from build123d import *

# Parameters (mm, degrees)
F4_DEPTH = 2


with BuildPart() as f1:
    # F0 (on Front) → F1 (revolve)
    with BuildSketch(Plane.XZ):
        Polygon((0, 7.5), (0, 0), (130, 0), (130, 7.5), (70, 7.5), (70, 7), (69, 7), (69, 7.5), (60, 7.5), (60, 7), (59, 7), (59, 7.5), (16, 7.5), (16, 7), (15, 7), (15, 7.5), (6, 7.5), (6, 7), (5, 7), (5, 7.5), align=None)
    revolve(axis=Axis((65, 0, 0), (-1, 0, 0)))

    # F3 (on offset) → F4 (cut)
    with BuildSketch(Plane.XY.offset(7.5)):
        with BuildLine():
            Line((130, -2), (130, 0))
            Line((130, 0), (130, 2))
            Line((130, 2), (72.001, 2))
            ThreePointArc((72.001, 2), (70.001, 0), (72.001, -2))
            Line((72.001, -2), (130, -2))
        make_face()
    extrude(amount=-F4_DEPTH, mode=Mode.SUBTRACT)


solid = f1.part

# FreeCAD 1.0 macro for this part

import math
import FreeCAD as App
import Part
import Sketcher
Q = App.Units.Quantity

doc = App.newDocument("Part")
body = doc.addObject("PartDesign::Body", "Body")

sketch1 = body.newObject("Sketcher::SketchObject", "Sketch")
sketch1.AttachmentSupport = (doc.getObject("XZ_Plane"), [""])
sketch1.MapMode = "FlatFace"
sketch1.addGeometry([
    Part.LineSegment(App.Vector(0, 7.5, 0), App.Vector(0, 0, 0)),
    Part.LineSegment(App.Vector(0, 0, 0), App.Vector(130, 0, 0)),
    Part.LineSegment(App.Vector(130, 0, 0), App.Vector(130, 7.5, 0)),
    Part.LineSegment(App.Vector(130, 7.5, 0), App.Vector(70, 7.5, 0)),
    Part.LineSegment(App.Vector(70, 7.5, 0), App.Vector(70, 7, 0)),
    Part.LineSegment(App.Vector(70, 7, 0), App.Vector(69, 7, 0)),
    Part.LineSegment(App.Vector(69, 7, 0), App.Vector(69, 7.5, 0)),
    Part.LineSegment(App.Vector(69, 7.5, 0), App.Vector(60, 7.5, 0)),
    Part.LineSegment(App.Vector(60, 7.5, 0), App.Vector(60, 7, 0)),
    Part.LineSegment(App.Vector(60, 7, 0), App.Vector(59, 7, 0)),
    Part.LineSegment(App.Vector(59, 7, 0), App.Vector(59, 7.5, 0)),
    Part.LineSegment(App.Vector(59, 7.5, 0), App.Vector(16, 7.5, 0)),
    Part.LineSegment(App.Vector(16, 7.5, 0), App.Vector(16, 7, 0)),
    Part.LineSegment(App.Vector(16, 7, 0), App.Vector(15, 7, 0)),
    Part.LineSegment(App.Vector(15, 7, 0), App.Vector(15, 7.5, 0)),
    Part.LineSegment(App.Vector(15, 7.5, 0), App.Vector(6, 7.5, 0)),
    Part.LineSegment(App.Vector(6, 7.5, 0), App.Vector(6, 7, 0)),
    Part.LineSegment(App.Vector(6, 7, 0), App.Vector(5, 7, 0)),
    Part.LineSegment(App.Vector(5, 7, 0), App.Vector(5, 7.5, 0)),
    Part.LineSegment(App.Vector(5, 7.5, 0), App.Vector(0, 7.5, 0)),
], False)
sketch1.addConstraint([
    Sketcher.Constraint("Coincident", 0, 2, 1, 1),
    Sketcher.Constraint("Coincident", 1, 2, 2, 1),
    Sketcher.Constraint("Coincident", 2, 2, 3, 1),
    Sketcher.Constraint("Coincident", 3, 2, 4, 1),
    Sketcher.Constraint("Coincident", 4, 2, 5, 1),
    Sketcher.Constraint("Coincident", 5, 2, 6, 1),
    Sketcher.Constraint("Coincident", 6, 2, 7, 1),
    Sketcher.Constraint("Coincident", 7, 2, 8, 1),
    Sketcher.Constraint("Coincident", 8, 2, 9, 1),
    Sketcher.Constraint("Coincident", 9, 2, 10, 1),
    Sketcher.Constraint("Coincident", 10, 2, 11, 1),
    Sketcher.Constraint("Coincident", 11, 2, 12, 1),
    Sketcher.Constraint("Coincident", 12, 2, 13, 1),
    Sketcher.Constraint("Coincident", 13, 2, 14, 1),
    Sketcher.Constraint("Coincident", 14, 2, 15, 1),
    Sketcher.Constraint("Coincident", 15, 2, 16, 1),
    Sketcher.Constraint("Coincident", 16, 2, 17, 1),
    Sketcher.Constraint("Coincident", 17, 2, 18, 1),
    Sketcher.Constraint("Coincident", 18, 2, 19, 1),
    Sketcher.Constraint("Coincident", 19, 2, 0, 1),
    Sketcher.Constraint("Vertical", 0),
    Sketcher.Constraint("Horizontal", 1),
    Sketcher.Constraint("Vertical", 2),
    Sketcher.Constraint("Horizontal", 3),
    Sketcher.Constraint("Vertical", 4),
    Sketcher.Constraint("Horizontal", 5),
    Sketcher.Constraint("Vertical", 6),
    Sketcher.Constraint("Horizontal", 7),
    Sketcher.Constraint("Vertical", 8),
    Sketcher.Constraint("Horizontal", 9),
    Sketcher.Constraint("Vertical", 10),
    Sketcher.Constraint("Horizontal", 11),
    Sketcher.Constraint("Vertical", 12),
    Sketcher.Constraint("Horizontal", 13),
    Sketcher.Constraint("Vertical", 14),
    Sketcher.Constraint("Horizontal", 15),
    Sketcher.Constraint("Vertical", 16),
    Sketcher.Constraint("Horizontal", 17),
    Sketcher.Constraint("Vertical", 18),
    Sketcher.Constraint("Horizontal", 19),
    Sketcher.Constraint("Coincident", 0, 2, -1, 1),
    Sketcher.Constraint("Horizontal", 3, 2, 6, 2),
    Sketcher.Constraint("Horizontal", 5, 2, 8, 2),
    Sketcher.Constraint("Horizontal", 7, 2, 10, 2),
    Sketcher.Constraint("Horizontal", 9, 2, 12, 2),
    Sketcher.Constraint("Horizontal", 11, 2, 14, 2),
    Sketcher.Constraint("Horizontal", 13, 2, 16, 2),
    Sketcher.Constraint("Horizontal", 15, 2, 18, 2),
    Sketcher.Constraint("Equal", 5, 9),
    Sketcher.Constraint("Equal", 9, 13),
    Sketcher.Constraint("Equal", 7, 15),
    Sketcher.Constraint("Equal", 13, 17),
    Sketcher.Constraint("DistanceX", 1, 1, 1, 2, Q("130 mm")),
    Sketcher.Constraint("DistanceX", 3, 2, 3, 1, Q("60 mm")),
    Sketcher.Constraint("DistanceX", 5, 2, 5, 1, Q("1 mm")),
    Sketcher.Constraint("DistanceX", 7, 2, 7, 1, Q("9 mm")),
    Sketcher.Constraint("DistanceX", 11, 2, 11, 1, Q("43 mm")),
    Sketcher.Constraint("DistanceY", 0, 2, 0, 1, Q("7.5 mm")),
    Sketcher.Constraint("DistanceY", 4, 2, 4, 1, Q("0.5 mm")),
])
revolution = body.newObject("PartDesign::Revolution", "Revolution")
revolution.Profile = sketch1
revolution.ReferenceAxis = (sketch1, ["H_Axis"])
revolution.Angle = 360

sketch2 = body.newObject("Sketcher::SketchObject", "Sketch001")
sketch2.AttachmentSupport = (doc.getObject("XY_Plane"), [""])
sketch2.MapMode = "FlatFace"
sketch2.AttachmentOffset = App.Placement(App.Vector(0, 0, 7.5), App.Rotation())
sketch2.addGeometry([
    Part.LineSegment(App.Vector(130, -2, 0), App.Vector(130, 2, 0)),
    Part.LineSegment(App.Vector(130, 2, 0), App.Vector(72.001, 2, 0)),
    Part.ArcOfCircle(Part.Circle(App.Vector(72.001, 0, 0), App.Vector(0, 0, 1), 2), math.radians(90), math.radians(270)),
    Part.LineSegment(App.Vector(72.001, -2, 0), App.Vector(130, -2, 0)),
], False)
sketch2.addConstraint([
    Sketcher.Constraint("Coincident", 0, 2, 1, 1),
    Sketcher.Constraint("Tangent", 1, 2, 2, 1),
    Sketcher.Constraint("Tangent", 2, 2, 3, 1),
    Sketcher.Constraint("Coincident", 3, 2, 0, 1),
    Sketcher.Constraint("Vertical", 0),
    Sketcher.Constraint("Horizontal", 1),
    Sketcher.Constraint("Horizontal", 3),
    Sketcher.Constraint("PointOnObject", 2, 3, -1),
    Sketcher.Constraint("Radius", 2, Q("2 mm")),
    Sketcher.Constraint("DistanceX", -1, 1, 0, 2, Q("130 mm")),
    Sketcher.Constraint("DistanceX", 1, 2, 1, 1, Q("57.999 mm")),
])
pocket1 = body.newObject("PartDesign::Pocket", "Pocket")
pocket1.Profile = sketch2
pocket1.Length = 2

doc.recompute()
